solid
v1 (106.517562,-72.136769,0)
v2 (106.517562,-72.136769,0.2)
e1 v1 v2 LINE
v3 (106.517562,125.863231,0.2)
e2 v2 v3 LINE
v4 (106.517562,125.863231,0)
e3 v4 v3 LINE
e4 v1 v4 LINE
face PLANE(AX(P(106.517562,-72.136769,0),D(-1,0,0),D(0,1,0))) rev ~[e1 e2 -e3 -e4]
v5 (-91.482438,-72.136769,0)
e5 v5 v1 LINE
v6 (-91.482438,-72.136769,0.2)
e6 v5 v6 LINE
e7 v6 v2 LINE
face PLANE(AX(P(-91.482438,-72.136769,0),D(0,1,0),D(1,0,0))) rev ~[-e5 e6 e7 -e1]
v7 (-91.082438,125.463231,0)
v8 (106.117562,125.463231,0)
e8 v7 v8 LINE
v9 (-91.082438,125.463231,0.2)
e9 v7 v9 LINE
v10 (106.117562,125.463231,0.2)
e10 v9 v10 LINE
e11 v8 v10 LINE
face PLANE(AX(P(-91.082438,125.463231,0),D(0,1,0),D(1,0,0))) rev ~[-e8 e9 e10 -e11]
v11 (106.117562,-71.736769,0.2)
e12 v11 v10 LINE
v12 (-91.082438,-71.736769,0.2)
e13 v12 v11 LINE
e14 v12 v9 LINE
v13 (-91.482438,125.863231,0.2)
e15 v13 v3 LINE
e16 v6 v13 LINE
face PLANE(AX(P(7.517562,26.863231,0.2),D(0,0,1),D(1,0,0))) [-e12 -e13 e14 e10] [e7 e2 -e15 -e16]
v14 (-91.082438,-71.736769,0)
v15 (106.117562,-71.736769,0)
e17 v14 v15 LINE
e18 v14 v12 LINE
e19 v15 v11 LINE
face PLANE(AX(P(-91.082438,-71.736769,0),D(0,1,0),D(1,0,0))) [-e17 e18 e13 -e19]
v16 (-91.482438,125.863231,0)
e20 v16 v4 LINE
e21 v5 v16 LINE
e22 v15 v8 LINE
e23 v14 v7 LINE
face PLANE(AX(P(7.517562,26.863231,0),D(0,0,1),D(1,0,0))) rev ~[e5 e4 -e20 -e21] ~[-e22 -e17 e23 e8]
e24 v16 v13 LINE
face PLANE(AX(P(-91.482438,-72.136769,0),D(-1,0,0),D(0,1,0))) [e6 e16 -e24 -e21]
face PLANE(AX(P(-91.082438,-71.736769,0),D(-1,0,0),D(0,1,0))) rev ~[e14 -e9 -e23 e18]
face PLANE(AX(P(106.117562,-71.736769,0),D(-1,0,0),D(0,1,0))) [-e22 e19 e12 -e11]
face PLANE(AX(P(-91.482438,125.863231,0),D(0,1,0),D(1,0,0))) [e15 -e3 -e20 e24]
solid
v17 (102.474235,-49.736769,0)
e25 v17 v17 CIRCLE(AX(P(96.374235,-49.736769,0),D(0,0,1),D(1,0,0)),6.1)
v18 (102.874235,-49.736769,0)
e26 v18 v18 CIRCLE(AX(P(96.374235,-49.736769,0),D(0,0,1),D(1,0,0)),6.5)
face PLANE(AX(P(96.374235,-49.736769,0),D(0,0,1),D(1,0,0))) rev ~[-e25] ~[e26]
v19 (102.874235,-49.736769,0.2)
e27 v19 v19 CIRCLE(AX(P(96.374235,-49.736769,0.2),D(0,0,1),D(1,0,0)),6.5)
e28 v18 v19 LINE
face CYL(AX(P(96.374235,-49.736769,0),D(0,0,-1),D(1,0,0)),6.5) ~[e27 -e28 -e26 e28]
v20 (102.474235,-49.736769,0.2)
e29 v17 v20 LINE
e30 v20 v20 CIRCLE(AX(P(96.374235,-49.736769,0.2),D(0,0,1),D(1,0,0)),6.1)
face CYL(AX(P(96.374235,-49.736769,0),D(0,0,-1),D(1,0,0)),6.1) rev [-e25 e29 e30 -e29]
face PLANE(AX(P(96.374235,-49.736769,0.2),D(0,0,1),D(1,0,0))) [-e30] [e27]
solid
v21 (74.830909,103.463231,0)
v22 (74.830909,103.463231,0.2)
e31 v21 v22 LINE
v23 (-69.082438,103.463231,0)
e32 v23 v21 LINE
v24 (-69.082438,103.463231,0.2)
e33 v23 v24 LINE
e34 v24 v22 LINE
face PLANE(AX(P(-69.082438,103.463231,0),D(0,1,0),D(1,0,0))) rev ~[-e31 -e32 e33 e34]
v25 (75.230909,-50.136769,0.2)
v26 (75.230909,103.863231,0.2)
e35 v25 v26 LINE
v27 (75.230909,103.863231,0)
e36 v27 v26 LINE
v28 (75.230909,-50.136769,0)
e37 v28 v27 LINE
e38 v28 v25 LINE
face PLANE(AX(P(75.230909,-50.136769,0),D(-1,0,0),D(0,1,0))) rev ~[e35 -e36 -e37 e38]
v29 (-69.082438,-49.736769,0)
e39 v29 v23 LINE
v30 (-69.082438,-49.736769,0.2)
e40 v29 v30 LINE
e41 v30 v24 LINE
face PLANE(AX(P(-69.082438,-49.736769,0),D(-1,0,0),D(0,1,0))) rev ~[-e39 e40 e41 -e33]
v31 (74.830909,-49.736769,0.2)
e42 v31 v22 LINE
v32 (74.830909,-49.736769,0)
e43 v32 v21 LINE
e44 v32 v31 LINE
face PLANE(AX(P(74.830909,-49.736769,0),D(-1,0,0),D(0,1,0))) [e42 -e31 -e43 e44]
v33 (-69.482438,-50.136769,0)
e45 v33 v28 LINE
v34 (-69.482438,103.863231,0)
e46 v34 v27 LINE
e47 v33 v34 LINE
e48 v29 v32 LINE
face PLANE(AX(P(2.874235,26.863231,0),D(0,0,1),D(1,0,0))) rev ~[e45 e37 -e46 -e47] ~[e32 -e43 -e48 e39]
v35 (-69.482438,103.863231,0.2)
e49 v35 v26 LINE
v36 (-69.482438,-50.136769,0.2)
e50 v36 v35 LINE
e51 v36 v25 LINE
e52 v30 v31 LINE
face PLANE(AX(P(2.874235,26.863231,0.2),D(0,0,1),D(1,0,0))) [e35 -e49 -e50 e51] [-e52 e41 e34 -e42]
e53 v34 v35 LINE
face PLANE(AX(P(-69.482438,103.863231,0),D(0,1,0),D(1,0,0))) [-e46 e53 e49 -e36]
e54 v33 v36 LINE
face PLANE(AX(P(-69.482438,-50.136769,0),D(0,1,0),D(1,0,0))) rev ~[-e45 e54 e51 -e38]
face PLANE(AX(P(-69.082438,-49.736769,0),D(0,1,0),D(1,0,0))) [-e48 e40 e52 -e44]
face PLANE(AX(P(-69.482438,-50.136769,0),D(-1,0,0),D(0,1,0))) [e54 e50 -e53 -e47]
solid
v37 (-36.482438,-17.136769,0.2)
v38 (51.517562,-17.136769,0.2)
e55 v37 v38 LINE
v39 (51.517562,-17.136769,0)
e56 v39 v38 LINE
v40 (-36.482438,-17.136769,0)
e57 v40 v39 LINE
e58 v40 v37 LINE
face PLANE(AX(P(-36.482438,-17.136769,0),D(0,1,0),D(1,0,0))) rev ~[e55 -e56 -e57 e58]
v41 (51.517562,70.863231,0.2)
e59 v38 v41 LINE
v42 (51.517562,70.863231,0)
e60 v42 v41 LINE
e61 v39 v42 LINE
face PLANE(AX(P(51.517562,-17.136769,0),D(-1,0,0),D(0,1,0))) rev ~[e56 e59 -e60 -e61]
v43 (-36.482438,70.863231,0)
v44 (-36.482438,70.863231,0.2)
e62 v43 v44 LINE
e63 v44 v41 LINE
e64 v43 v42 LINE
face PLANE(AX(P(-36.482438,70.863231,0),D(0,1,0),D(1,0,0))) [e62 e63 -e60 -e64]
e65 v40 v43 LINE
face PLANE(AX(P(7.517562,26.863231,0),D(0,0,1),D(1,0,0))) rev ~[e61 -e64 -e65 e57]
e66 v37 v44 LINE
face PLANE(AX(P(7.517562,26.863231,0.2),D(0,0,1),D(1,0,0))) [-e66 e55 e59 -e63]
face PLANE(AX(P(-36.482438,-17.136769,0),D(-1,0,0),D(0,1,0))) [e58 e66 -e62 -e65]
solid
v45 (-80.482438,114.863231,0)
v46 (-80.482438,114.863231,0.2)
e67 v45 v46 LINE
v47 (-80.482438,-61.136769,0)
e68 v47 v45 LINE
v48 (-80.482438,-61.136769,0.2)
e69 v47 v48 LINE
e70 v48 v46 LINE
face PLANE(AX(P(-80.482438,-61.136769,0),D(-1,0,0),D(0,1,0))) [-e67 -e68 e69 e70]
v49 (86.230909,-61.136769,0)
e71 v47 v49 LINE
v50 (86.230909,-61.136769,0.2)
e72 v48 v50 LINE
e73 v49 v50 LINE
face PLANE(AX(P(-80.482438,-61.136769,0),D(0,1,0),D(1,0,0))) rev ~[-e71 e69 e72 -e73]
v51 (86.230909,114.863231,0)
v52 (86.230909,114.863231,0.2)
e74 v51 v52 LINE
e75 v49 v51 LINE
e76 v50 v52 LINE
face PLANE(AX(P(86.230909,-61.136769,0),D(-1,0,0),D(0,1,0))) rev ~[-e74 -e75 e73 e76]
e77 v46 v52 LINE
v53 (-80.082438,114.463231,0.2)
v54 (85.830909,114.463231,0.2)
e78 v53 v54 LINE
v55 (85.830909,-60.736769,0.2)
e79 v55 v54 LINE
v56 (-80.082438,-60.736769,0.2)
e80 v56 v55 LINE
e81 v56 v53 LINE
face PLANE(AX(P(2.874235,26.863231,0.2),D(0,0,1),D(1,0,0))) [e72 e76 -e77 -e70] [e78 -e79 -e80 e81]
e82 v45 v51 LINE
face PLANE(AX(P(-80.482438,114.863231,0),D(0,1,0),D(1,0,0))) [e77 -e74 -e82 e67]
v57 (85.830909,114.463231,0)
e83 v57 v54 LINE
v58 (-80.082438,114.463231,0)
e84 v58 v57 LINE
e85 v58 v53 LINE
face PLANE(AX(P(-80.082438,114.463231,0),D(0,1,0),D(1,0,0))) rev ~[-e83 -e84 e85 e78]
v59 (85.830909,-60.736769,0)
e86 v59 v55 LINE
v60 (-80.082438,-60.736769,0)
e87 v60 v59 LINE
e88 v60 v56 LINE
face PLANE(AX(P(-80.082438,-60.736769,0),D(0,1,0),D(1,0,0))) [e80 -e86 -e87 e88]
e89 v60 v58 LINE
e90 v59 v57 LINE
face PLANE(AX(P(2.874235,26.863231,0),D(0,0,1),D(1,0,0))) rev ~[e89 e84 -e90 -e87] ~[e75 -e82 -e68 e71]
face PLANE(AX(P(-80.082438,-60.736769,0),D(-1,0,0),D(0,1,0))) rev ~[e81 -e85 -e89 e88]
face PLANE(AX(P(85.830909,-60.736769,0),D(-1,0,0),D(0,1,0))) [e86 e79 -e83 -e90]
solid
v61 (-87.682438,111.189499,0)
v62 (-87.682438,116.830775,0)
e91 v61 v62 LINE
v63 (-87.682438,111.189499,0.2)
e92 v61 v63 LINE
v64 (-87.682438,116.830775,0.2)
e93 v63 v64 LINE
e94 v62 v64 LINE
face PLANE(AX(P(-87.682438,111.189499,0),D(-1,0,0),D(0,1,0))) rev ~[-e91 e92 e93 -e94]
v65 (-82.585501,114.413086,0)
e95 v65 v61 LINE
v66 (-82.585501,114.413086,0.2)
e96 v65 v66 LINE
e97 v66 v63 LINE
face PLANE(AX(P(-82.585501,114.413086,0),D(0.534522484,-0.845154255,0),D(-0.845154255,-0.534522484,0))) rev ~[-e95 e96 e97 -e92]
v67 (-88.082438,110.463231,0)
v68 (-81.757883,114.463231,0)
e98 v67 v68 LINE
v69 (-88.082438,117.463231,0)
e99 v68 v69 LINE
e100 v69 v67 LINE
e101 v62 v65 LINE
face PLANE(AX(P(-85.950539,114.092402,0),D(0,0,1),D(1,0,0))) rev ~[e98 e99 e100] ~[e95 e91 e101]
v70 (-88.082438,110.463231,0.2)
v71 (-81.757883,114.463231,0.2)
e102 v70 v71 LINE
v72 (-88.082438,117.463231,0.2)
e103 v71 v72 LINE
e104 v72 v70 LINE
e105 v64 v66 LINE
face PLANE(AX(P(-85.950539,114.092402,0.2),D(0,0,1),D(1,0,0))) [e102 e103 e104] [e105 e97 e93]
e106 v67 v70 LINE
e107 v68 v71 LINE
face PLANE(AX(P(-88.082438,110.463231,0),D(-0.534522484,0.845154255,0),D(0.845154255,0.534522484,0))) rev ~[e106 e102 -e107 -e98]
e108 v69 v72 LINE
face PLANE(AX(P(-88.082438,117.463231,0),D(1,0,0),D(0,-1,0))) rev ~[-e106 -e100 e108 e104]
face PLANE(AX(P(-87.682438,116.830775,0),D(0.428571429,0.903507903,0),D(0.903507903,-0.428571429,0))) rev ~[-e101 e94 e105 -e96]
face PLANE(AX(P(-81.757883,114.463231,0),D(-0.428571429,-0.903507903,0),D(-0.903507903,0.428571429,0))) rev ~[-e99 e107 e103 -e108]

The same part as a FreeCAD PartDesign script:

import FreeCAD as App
import Part
import Sketcher

doc = App.newDocument("Part")
body = doc.addObject("PartDesign::Body", "Body")

sketch1 = body.newObject("Sketcher::SketchObject", "Sketch")
sketch1.AttachmentSupport = (doc.getObject("XY_Plane"), [""])
sketch1.MapMode = "FlatFace"
sketch1.addGeometry([
    Part.LineSegment(App.Vector(-91.482438, 125.863231, 0), App.Vector(-91.482438, -72.136769, 0)),
    Part.LineSegment(App.Vector(-91.482438, -72.136769, 0), App.Vector(106.517562, -72.136769, 0)),
    Part.LineSegment(App.Vector(106.517562, -72.136769, 0), App.Vector(106.517562, 125.863231, 0)),
    Part.LineSegment(App.Vector(106.517562, 125.863231, 0), App.Vector(-91.482438, 125.863231, 0)),
    Part.LineSegment(App.Vector(106.117562, -71.736769, 0), App.Vector(-91.082438, -71.736769, 0)),
    Part.LineSegment(App.Vector(-91.082438, -71.736769, 0), App.Vector(-91.082438, 125.463231, 0)),
    Part.LineSegment(App.Vector(-91.082438, 125.463231, 0), App.Vector(106.117562, 125.463231, 0)),
    Part.LineSegment(App.Vector(106.117562, 125.463231, 0), App.Vector(106.117562, -71.736769, 0)),
], False)
sketch1.addConstraint([
    Sketcher.Constraint("Coincident", 0, 2, 1, 1),
    Sketcher.Constraint("Coincident", 1, 2, 2, 1),
    Sketcher.Constraint("Coincident", 2, 2, 3, 1),
    Sketcher.Constraint("Coincident", 3, 2, 0, 1),
    Sketcher.Constraint("Coincident", 4, 2, 5, 1),
    Sketcher.Constraint("Coincident", 5, 2, 6, 1),
    Sketcher.Constraint("Coincident", 6, 2, 7, 1),
    Sketcher.Constraint("Coincident", 7, 2, 4, 1),
    Sketcher.Constraint("Vertical", 0),
    Sketcher.Constraint("Horizontal", 1),
    Sketcher.Constraint("Vertical", 2),
    Sketcher.Constraint("Horizontal", 3),
    Sketcher.Constraint("Horizontal", 4),
    Sketcher.Constraint("Vertical", 5),
    Sketcher.Constraint("Horizontal", 6),
    Sketcher.Constraint("Vertical", 7),
    Sketcher.Constraint("Equal", 3, 0),
    Sketcher.Constraint("Equal", 6, 5),
    Sketcher.Constraint("DistanceX", 1, 1, 1, 2, 198.0),
    Sketcher.Constraint("DistanceX", 4, 2, 4, 1, 197.2),
    Sketcher.Constraint("DistanceX", 0, 2, 4, 2, 0.4),
    Sketcher.Constraint("DistanceY", 0, 2, 4, 2, 0.4),
    Sketcher.Constraint("DistanceX", 0, 2, -1, 1, 91.482438),
    Sketcher.Constraint("DistanceY", 0, 2, -1, 1, 72.136769),
])
pad1 = body.newObject("PartDesign::Pad", "Pad")
pad1.Profile = sketch1
pad1.Length = 0.2
body2 = doc.addObject("PartDesign::Body", "Body001")

sketch2 = body2.newObject("Sketcher::SketchObject", "Sketch001")
sketch2.AttachmentSupport = (doc.getObject("XY_Plane001"), [""])
sketch2.MapMode = "FlatFace"
sketch2.addGeometry([
    Part.LineSegment(App.Vector(-80.482438, 114.863231, 0), App.Vector(-80.482438, -61.136769, 0)),
    Part.LineSegment(App.Vector(-80.482438, -61.136769, 0), App.Vector(86.230909, -61.136769, 0)),
    Part.LineSegment(App.Vector(86.230909, -61.136769, 0), App.Vector(86.230909, 114.863231, 0)),
    Part.LineSegment(App.Vector(86.230909, 114.863231, 0), App.Vector(-80.482438, 114.863231, 0)),
    Part.LineSegment(App.Vector(85.830909, -60.736769, 0), App.Vector(-80.082438, -60.736769, 0)),
    Part.LineSegment(App.Vector(-80.082438, -60.736769, 0), App.Vector(-80.082438, 114.463231, 0)),
    Part.LineSegment(App.Vector(-80.082438, 114.463231, 0), App.Vector(85.830909, 114.463231, 0)),
    Part.LineSegment(App.Vector(85.830909, 114.463231, 0), App.Vector(85.830909, -60.736769, 0)),
], False)
sketch2.addConstraint([
    Sketcher.Constraint("Coincident", 0, 2, 1, 1),
    Sketcher.Constraint("Coincident", 1, 2, 2, 1),
    Sketcher.Constraint("Coincident", 2, 2, 3, 1),
    Sketcher.Constraint("Coincident", 3, 2, 0, 1),
    Sketcher.Constraint("Coincident", 4, 2, 5, 1),
    Sketcher.Constraint("Coincident", 5, 2, 6, 1),
    Sketcher.Constraint("Coincident", 6, 2, 7, 1),
    Sketcher.Constraint("Coincident", 7, 2, 4, 1),
    Sketcher.Constraint("Vertical", 0),
    Sketcher.Constraint("Horizontal", 1),
    Sketcher.Constraint("Vertical", 2),
    Sketcher.Constraint("Horizontal", 3),
    Sketcher.Constraint("Horizontal", 4),
    Sketcher.Constraint("Vertical", 5),
    Sketcher.Constraint("Horizontal", 6),
    Sketcher.Constraint("Vertical", 7),
    Sketcher.Constraint("DistanceY", 0, 2, 0, 1, 176.0),
    Sketcher.Constraint("DistanceY", 5, 1, 5, 2, 175.2),
    Sketcher.Constraint("DistanceX", 0, 2, 4, 2, 0.4),
    Sketcher.Constraint("DistanceY", 0, 2, 4, 2, 0.4),
    Sketcher.Constraint("DistanceX", 6, 2, 2, 2, 0.4),
    Sketcher.Constraint("DistanceX", 1, 1, 1, 2, 166.713347),
    Sketcher.Constraint("DistanceX", 0, 2, -1, 1, 80.482438),
    Sketcher.Constraint("DistanceY", 0, 2, -1, 1, 61.136769),
])
pad2 = body2.newObject("PartDesign::Pad", "Pad001")
pad2.Profile = sketch2
pad2.Length = 0.2
body3 = doc.addObject("PartDesign::Body", "Body002")

sketch3 = body3.newObject("Sketcher::SketchObject", "Sketch002")
sketch3.AttachmentSupport = (doc.getObject("XY_Plane002"), [""])
sketch3.MapMode = "FlatFace"
sketch3.addGeometry([
    Part.LineSegment(App.Vector(-69.482438, 103.863231, 0), App.Vector(-69.482438, -50.136769, 0)),
    Part.LineSegment(App.Vector(-69.482438, -50.136769, 0), App.Vector(75.230909, -50.136769, 0)),
    Part.LineSegment(App.Vector(75.230909, -50.136769, 0), App.Vector(75.230909, 103.863231, 0)),
    Part.LineSegment(App.Vector(75.230909, 103.863231, 0), App.Vector(-69.482438, 103.863231, 0)),
    Part.LineSegment(App.Vector(74.830909, -49.736769, 0), App.Vector(-69.082438, -49.736769, 0)),
    Part.LineSegment(App.Vector(-69.082438, -49.736769, 0), App.Vector(-69.082438, 103.463231, 0)),
    Part.LineSegment(App.Vector(-69.082438, 103.463231, 0), App.Vector(74.830909, 103.463231, 0)),
    Part.LineSegment(App.Vector(74.830909, 103.463231, 0), App.Vector(74.830909, -49.736769, 0)),
], False)
sketch3.addConstraint([
    Sketcher.Constraint("Coincident", 0, 2, 1, 1),
    Sketcher.Constraint("Coincident", 1, 2, 2, 1),
    Sketcher.Constraint("Coincident", 2, 2, 3, 1),
    Sketcher.Constraint("Coincident", 3, 2, 0, 1),
    Sketcher.Constraint("Coincident", 4, 2, 5, 1),
    Sketcher.Constraint("Coincident", 5, 2, 6, 1),
    Sketcher.Constraint("Coincident", 6, 2, 7, 1),
    Sketcher.Constraint("Coincident", 7, 2, 4, 1),
    Sketcher.Constraint("Vertical", 0),
    Sketcher.Constraint("Horizontal", 1),
    Sketcher.Constraint("Vertical", 2),
    Sketcher.Constraint("Horizontal", 3),
    Sketcher.Constraint("Horizontal", 4),
    Sketcher.Constraint("Vertical", 5),
    Sketcher.Constraint("Horizontal", 6),
    Sketcher.Constraint("Vertical", 7),
    Sketcher.Constraint("DistanceY", 0, 2, 0, 1, 154.0),
    Sketcher.Constraint("DistanceY", 5, 1, 5, 2, 153.2),
    Sketcher.Constraint("DistanceX", 0, 2, 4, 2, 0.4),
    Sketcher.Constraint("DistanceY", 0, 2, 4, 2, 0.4),
    Sketcher.Constraint("DistanceX", 6, 2, 2, 2, 0.4),
    Sketcher.Constraint("DistanceX", 1, 1, 1, 2, 144.713347),
    Sketcher.Constraint("DistanceX", 0, 2, -1, 1, 69.482438),
    Sketcher.Constraint("DistanceY", 0, 2, -1, 1, 50.136769),
])
pad3 = body3.newObject("PartDesign::Pad", "Pad002")
pad3.Profile = sketch3
pad3.Length = 0.2
body4 = doc.addObject("PartDesign::Body", "Body003")

sketch4 = body4.newObject("Sketcher::SketchObject", "Sketch003")
sketch4.AttachmentSupport = (doc.getObject("XY_Plane003"), [""])
sketch4.MapMode = "FlatFace"
sketch4.addGeometry([
    Part.Circle(App.Vector(96.374235, -49.736769, 0), App.Vector(0, 0, 1), 6.5),
    Part.Circle(App.Vector(96.374235, -49.736769, 0), App.Vector(0, 0, 1), 6.1),
], False)
sketch4.addConstraint([
    Sketcher.Constraint("Coincident", 1, 3, 0, 3),
    Sketcher.Constraint("Diameter", 0, 13.0),
    Sketcher.Constraint("Diameter", 1, 12.2),
    Sketcher.Constraint("DistanceY", 0, 3, -1, 1, 49.736769),
    Sketcher.Constraint("DistanceX", -1, 1, 0, 3, 96.374235),
])
pad4 = body4.newObject("PartDesign::Pad", "Pad003")
pad4.Profile = sketch4
pad4.Length = 0.2
body5 = doc.addObject("PartDesign::Body", "Body004")

sketch5 = body5.newObject("Sketcher::SketchObject", "Sketch004")
sketch5.AttachmentSupport = (doc.getObject("XY_Plane004"), [""])
sketch5.MapMode = "FlatFace"
sketch5.addGeometry([
    Part.LineSegment(App.Vector(-36.482438, 70.863231, 0), App.Vector(-36.482438, -17.136769, 0)),
    Part.LineSegment(App.Vector(-36.482438, -17.136769, 0), App.Vector(51.517562, -17.136769, 0)),
    Part.LineSegment(App.Vector(51.517562, -17.136769, 0), App.Vector(51.517562, 70.863231, 0)),
    Part.LineSegment(App.Vector(51.517562, 70.863231, 0), App.Vector(-36.482438, 70.863231, 0)),
], False)
sketch5.addConstraint([
    Sketcher.Constraint("Coincident", 0, 2, 1, 1),
    Sketcher.Constraint("Coincident", 1, 2, 2, 1),
    Sketcher.Constraint("Coincident", 2, 2, 3, 1),
    Sketcher.Constraint("Coincident", 3, 2, 0, 1),
    Sketcher.Constraint("Vertical", 0),
    Sketcher.Constraint("Horizontal", 1),
    Sketcher.Constraint("Vertical", 2),
    Sketcher.Constraint("Horizontal", 3),
    Sketcher.Constraint("Equal", 3, 0),
    Sketcher.Constraint("DistanceX", 1, 1, 1, 2, 88.0),
    Sketcher.Constraint("DistanceX", 0, 2, -1, 1, 36.482438),
    Sketcher.Constraint("DistanceY", 0, 2, -1, 1, 17.136769),
])
pad5 = body5.newObject("PartDesign::Pad", "Pad004")
pad5.Profile = sketch5
pad5.Length = 0.2
body6 = doc.addObject("PartDesign::Body", "Body005")

sketch6 = body6.newObject("Sketcher::SketchObject", "Sketch005")
sketch6.AttachmentSupport = (doc.getObject("XY_Plane005"), [""])
sketch6.MapMode = "FlatFace"
sketch6.addGeometry([
    Part.LineSegment(App.Vector(-81.757883, 114.463231, 0), App.Vector(-88.082438, 117.463231, 0)),
    Part.LineSegment(App.Vector(-88.082438, 117.463231, 0), App.Vector(-88.082438, 110.463231, 0)),
    Part.LineSegment(App.Vector(-88.082438, 110.463231, 0), App.Vector(-81.757883, 114.463231, 0)),
    Part.LineSegment(App.Vector(-82.585501, 114.413086, 0), App.Vector(-87.682438, 111.189499, 0)),
    Part.LineSegment(App.Vector(-87.682438, 111.189499, 0), App.Vector(-87.682438, 116.830775, 0)),
    Part.LineSegment(App.Vector(-87.682438, 116.830775, 0), App.Vector(-82.585501, 114.413086, 0)),
], False)
sketch6.addConstraint([
    Sketcher.Constraint("Coincident", 0, 2, 1, 1),
    Sketcher.Constraint("Coincident", 1, 2, 2, 1),
    Sketcher.Constraint("Coincident", 2, 2, 0, 1),
    Sketcher.Constraint("Coincident", 3, 2, 4, 1),
    Sketcher.Constraint("Coincident", 4, 2, 5, 1),
    Sketcher.Constraint("Coincident", 5, 2, 3, 1),
    Sketcher.Constraint("Vertical", 1),
    Sketcher.Constraint("Vertical", 4),
    Sketcher.Constraint("Parallel", 2, 3),
    Sketcher.Constraint("Parallel", 0, 5),
    Sketcher.Constraint("DistanceY", 1, 2, 1, 1, 7.0),
    Sketcher.Constraint("Distance", 0, 7.0),
    Sketcher.Constraint("DistanceY", 2, 2, 0, 2, 3.0),
    Sketcher.Constraint("DistanceX", 1, 2, 3, 2, 0.4),
    Sketcher.Constraint("DistanceY", -1, 1, 3, 2, 111.189499),
    Sketcher.Constraint("DistanceX", 5, 2, -1, 1, 82.585501),
    Sketcher.Constraint("DistanceY", 4, 1, 4, 2, 5.641276),
    Sketcher.Constraint("DistanceY", -1, 1, 0, 2, 117.463231),
])
pad6 = body6.newObject("PartDesign::Pad", "Pad005")
pad6.Profile = sketch6
pad6.Length = 0.2

doc.recompute()
